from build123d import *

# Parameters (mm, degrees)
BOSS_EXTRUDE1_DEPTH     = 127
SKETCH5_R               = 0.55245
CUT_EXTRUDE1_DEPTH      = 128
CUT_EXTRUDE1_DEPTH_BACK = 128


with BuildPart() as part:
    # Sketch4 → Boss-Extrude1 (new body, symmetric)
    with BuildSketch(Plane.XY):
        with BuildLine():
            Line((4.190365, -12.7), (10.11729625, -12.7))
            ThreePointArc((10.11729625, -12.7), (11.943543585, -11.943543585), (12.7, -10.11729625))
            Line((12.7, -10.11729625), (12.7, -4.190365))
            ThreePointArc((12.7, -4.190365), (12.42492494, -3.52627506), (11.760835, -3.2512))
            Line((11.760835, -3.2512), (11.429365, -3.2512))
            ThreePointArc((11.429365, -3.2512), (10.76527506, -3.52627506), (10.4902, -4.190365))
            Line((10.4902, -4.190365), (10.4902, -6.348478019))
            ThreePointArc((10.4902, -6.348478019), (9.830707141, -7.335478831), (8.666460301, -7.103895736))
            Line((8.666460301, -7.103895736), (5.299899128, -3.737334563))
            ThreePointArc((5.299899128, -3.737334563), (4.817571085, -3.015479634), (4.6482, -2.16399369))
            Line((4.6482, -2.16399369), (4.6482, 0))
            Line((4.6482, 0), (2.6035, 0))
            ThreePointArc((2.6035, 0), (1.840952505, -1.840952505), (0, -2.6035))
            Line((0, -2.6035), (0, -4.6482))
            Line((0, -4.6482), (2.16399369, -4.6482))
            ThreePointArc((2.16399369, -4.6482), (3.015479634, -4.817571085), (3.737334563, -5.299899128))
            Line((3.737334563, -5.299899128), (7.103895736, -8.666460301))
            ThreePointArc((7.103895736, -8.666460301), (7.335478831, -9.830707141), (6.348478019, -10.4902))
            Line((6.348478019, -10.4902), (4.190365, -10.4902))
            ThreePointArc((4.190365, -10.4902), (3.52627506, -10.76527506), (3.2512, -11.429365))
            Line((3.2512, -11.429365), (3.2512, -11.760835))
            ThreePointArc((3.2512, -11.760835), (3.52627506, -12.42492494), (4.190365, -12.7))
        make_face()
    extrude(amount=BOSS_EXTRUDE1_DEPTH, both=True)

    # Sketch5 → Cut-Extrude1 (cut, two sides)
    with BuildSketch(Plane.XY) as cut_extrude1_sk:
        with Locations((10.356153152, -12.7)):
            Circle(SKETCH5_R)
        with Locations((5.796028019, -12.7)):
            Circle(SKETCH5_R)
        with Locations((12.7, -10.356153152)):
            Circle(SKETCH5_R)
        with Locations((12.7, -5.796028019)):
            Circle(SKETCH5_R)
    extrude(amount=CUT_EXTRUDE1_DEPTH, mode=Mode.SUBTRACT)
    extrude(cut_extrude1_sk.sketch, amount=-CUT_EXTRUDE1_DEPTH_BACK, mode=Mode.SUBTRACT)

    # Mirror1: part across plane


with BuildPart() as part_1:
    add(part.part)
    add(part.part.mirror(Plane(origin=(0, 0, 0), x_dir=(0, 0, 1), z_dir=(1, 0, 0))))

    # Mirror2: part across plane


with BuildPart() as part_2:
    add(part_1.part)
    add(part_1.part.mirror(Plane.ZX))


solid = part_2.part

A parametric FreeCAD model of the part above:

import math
import FreeCAD as App
import Part
import Sketcher
Q = App.Units.Quantity

doc = App.newDocument("Part")
body = doc.addObject("PartDesign::Body", "Body")

# Sketch on XY plane
sketch1 = doc.addObject("Sketcher::SketchObject", "Sketch")
body.addObject(sketch1)
sketch1.AttachmentSupport = (doc.XY_Plane, [""])
sketch1.MapMode = "FlatFace"
sketch1.addGeometry([
    Part.LineSegment(App.Vector(4.19, -12.7, 0), App.Vector(10.12, -12.7, 0)),  # 0
    Part.ArcOfCircle(Part.Circle(App.Vector(10.12, -10.12, 0), App.Vector(0, 0, 1), 2.58), math.radians(-90), math.radians(0)),  # 1
    Part.LineSegment(App.Vector(12.7, -10.12, 0), App.Vector(12.7, -4.19, 0)),  # 2
    Part.ArcOfCircle(Part.Circle(App.Vector(11.76, -4.19, 0), App.Vector(0, 0, 1), 0.94), math.radians(0), math.radians(90)),  # 3
    Part.LineSegment(App.Vector(11.76, -3.25, 0), App.Vector(11.43, -3.25, 0)),  # 4
    Part.ArcOfCircle(Part.Circle(App.Vector(11.43, -4.19, 0), App.Vector(0, 0, 1), 0.94), math.radians(90), math.radians(180)),  # 5
    Part.LineSegment(App.Vector(10.49, -4.19, 0), App.Vector(10.49, -6.35, 0)),  # 6
    Part.ArcOfCircle(Part.Circle(App.Vector(9.42, -6.35, 0), App.Vector(0, 0, 1), 1.07), math.radians(-135), math.radians(0)),  # 7
    Part.LineSegment(App.Vector(8.67, -7.1, 0), App.Vector(5.3, -3.74, 0)),  # 8
    Part.ArcOfCircle(Part.Circle(App.Vector(6.87, -2.16, 0), App.Vector(0, 0, 1), 2.23), math.radians(-180), math.radians(-135)),  # 9
    Part.LineSegment(App.Vector(4.65, -2.16, 0), App.Vector(4.65, 0, 0)),  # 10
    Part.LineSegment(App.Vector(4.65, 0, 0), App.Vector(2.6, 0, 0)),  # 11
    Part.ArcOfCircle(Part.Circle(App.Vector(0, 0, 0), App.Vector(0, 0, 1), 2.6), math.radians(-90), math.radians(0)),  # 12
    Part.LineSegment(App.Vector(0, -2.6, 0), App.Vector(0, -4.65, 0)),  # 13
    Part.LineSegment(App.Vector(0, -4.65, 0), App.Vector(2.16, -4.65, 0)),  # 14
    Part.ArcOfCircle(Part.Circle(App.Vector(2.16, -6.87, 0), App.Vector(0, 0, 1), 2.23), math.radians(45), math.radians(90)),  # 15
    Part.LineSegment(App.Vector(3.74, -5.3, 0), App.Vector(7.1, -8.67, 0)),  # 16
    Part.ArcOfCircle(Part.Circle(App.Vector(6.35, -9.42, 0), App.Vector(0, 0, 1), 1.07), math.radians(-90), math.radians(45)),  # 17
    Part.LineSegment(App.Vector(6.35, -10.49, 0), App.Vector(4.19, -10.49, 0)),  # 18
    Part.ArcOfCircle(Part.Circle(App.Vector(4.19, -11.43, 0), App.Vector(0, 0, 1), 0.94), math.radians(90), math.radians(180)),  # 19
    Part.LineSegment(App.Vector(3.25, -11.43, 0), App.Vector(3.25, -11.76, 0)),  # 20
    Part.ArcOfCircle(Part.Circle(App.Vector(4.19, -11.76, 0), App.Vector(0, 0, 1), 0.94), math.radians(-180), math.radians(-90)),  # 21
], False)
sketch1.addConstraint([
    Sketcher.Constraint("Tangent", 0, 2, 1, 1),
    Sketcher.Constraint("Tangent", 1, 2, 2, 1),
    Sketcher.Constraint("Tangent", 2, 2, 3, 1),
    Sketcher.Constraint("Tangent", 3, 2, 4, 1),
    Sketcher.Constraint("Tangent", 4, 2, 5, 1),
    Sketcher.Constraint("Tangent", 5, 2, 6, 1),
    Sketcher.Constraint("Tangent", 6, 2, 7, 2),
    Sketcher.Constraint("Tangent", 7, 1, 8, 1),
    Sketcher.Constraint("Tangent", 8, 2, 9, 2),
    Sketcher.Constraint("Tangent", 9, 1, 10, 1),
    Sketcher.Constraint("Coincident", 10, 2, 11, 1),
    Sketcher.Constraint("Coincident", 11, 2, 12, 2),
    Sketcher.Constraint("Coincident", 12, 1, 13, 1),
    Sketcher.Constraint("Coincident", 13, 2, 14, 1),
    Sketcher.Constraint("Tangent", 14, 2, 15, 2),
    Sketcher.Constraint("Tangent", 15, 1, 16, 1),
    Sketcher.Constraint("Tangent", 16, 2, 17, 2),
    Sketcher.Constraint("Tangent", 17, 1, 18, 1),
    Sketcher.Constraint("Tangent", 18, 2, 19, 1),
    Sketcher.Constraint("Tangent", 19, 2, 20, 1),
    Sketcher.Constraint("Tangent", 20, 2, 21, 1),
    Sketcher.Constraint("Tangent", 21, 2, 0, 1),
    Sketcher.Constraint("Horizontal", 0),
    Sketcher.Constraint("Vertical", 2),
    Sketcher.Constraint("Horizontal", 4),
    Sketcher.Constraint("Vertical", 6),
    Sketcher.Constraint("Vertical", 10),
    Sketcher.Constraint("Horizontal", 11),
    Sketcher.Constraint("Vertical", 13),
    Sketcher.Constraint("Horizontal", 14),
    Sketcher.Constraint("Horizontal", 18),
    Sketcher.Constraint("Vertical", 20),
    Sketcher.Constraint("Coincident", 12, 3, -1, 1),
    Sketcher.Constraint("Equal", 3, 5),
    Sketcher.Constraint("Equal", 9, 15),
    Sketcher.Constraint("Equal", 7, 17),
    Sketcher.Constraint("Equal", 5, 19),
    Sketcher.Constraint("Equal", 19, 21),
    Sketcher.Constraint("PointOnObject", 10, 2, -1),
    Sketcher.Constraint("PointOnObject", 12, 1, -2),
    Sketcher.Constraint("Parallel", 8, 16),
    Sketcher.Constraint("Equal", 0, 2),
    Sketcher.Constraint("Equal", 18, 6),
    Sketcher.Constraint("Equal", 14, 10),
    Sketcher.Constraint("Equal", 11, 13),
    Sketcher.Constraint("Equal", 4, 20),
    Sketcher.Constraint("Equal", 8, 16),
    Sketcher.Constraint("DistanceY", 0, 2, -1, 1, Q("0.5 in")),
    Sketcher.Constraint("Radius", 9, Q("0.0876 in")),
    Sketcher.Constraint("Radius", 12, Q("0.1025 in")),
    Sketcher.Constraint("DistanceX", 9, 1, 5, 2, Q("0.23 in")),
    Sketcher.Constraint("DistanceX", 11, 2, 11, 1, Q("0.0805 in")),
    Sketcher.Constraint("DistanceY", 3, 2, -1, 1, Q("0.128 in")),
    Sketcher.Constraint("Radius", 7, 1.068322),
    Sketcher.Constraint("DistanceX", 17, 3, 7, 3, Q("0.121 in")),
    Sketcher.Constraint("Radius", 1, 2.582704),
    Sketcher.Constraint("Radius", 3, 0.939165),
])
pad1 = doc.addObject("PartDesign::Pad", "Pad")
body.addObject(pad1)
pad1.Profile = sketch1
pad1.Length = Q("10 in")
pad1.Midplane = True

# Sketch on XY plane
sketch2 = doc.addObject("Sketcher::SketchObject", "Sketch001")
body.addObject(sketch2)
sketch2.AttachmentSupport = (doc.XY_Plane, [""])
sketch2.MapMode = "FlatFace"
sketch2.addGeometry([
    Part.Circle(App.Vector(10.4, -12.7, 0), App.Vector(0, 0, 1), 0.6),
    Part.Circle(App.Vector(5.8, -12.7, 0), App.Vector(0, 0, 1), 0.6),
    Part.Circle(App.Vector(12.7, -10.4, 0), App.Vector(0, 0, 1), 0.6),
    Part.Circle(App.Vector(12.7, -5.8, 0), App.Vector(0, 0, 1), 0.6),
], False)
sketch2.addConstraint([
    Sketcher.Constraint("Equal", 0, 1),
    Sketcher.Constraint("Equal", 1, 2),
    Sketcher.Constraint("Equal", 2, 3),
    Sketcher.Constraint("Horizontal", 0, 3, 1, 3),
    Sketcher.Constraint("Vertical", 2, 3, 3, 3),
    Sketcher.Constraint("Diameter", 0, Q("0.0435 in")),
    Sketcher.Constraint("DistanceY", 0, 3, -1, 1, Q("0.5 in")),
    Sketcher.Constraint("DistanceX", -1, 1, 2, 3, Q("0.5 in")),
    Sketcher.Constraint("DistanceX", -1, 1, 1, 3, 5.796028),
    Sketcher.Constraint("DistanceY", 3, 3, -1, 1, 5.796028),
    Sketcher.Constraint("DistanceX", -1, 1, 0, 3, 10.356153),
    Sketcher.Constraint("DistanceY", 2, 3, -1, 1, 10.356153),
])
pocket1 = doc.addObject("PartDesign::Pocket", "Pocket")
body.addObject(pocket1)
pocket1.Profile = sketch2
pocket1.Type = "ThroughAll"
pocket1.Midplane = True
body2 = doc.addObject("PartDesign::Body", "Body001")
doc.recompute()

body2.BaseFeature = body
doc.recompute()

mirroring = doc.addObject("Part::Mirroring", "Mirroring")
mirroring.Source = body
mirroring.Base = App.Vector(0, 0, 0)
mirroring.Normal = App.Vector(1, 0, 0)
body3 = doc.addObject("PartDesign::Body", "Body002")
body3.BaseFeature = mirroring
boolean = doc.addObject("PartDesign::Boolean", "Boolean")
body2.addObject(boolean)
boolean.Type = "Fuse"
boolean.addObjects([body3])
doc.recompute()
body4 = doc.addObject("PartDesign::Body", "Body003")
doc.recompute()

body4.BaseFeature = body2
doc.recompute()

mirroring2 = doc.addObject("Part::Mirroring", "Mirroring001")
mirroring2.Source = body2
mirroring2.Base = App.Vector(0, 0, 0)
mirroring2.Normal = App.Vector(0, 1, 0)
body5 = doc.addObject("PartDesign::Body", "Body004")
body5.BaseFeature = mirroring2
boolean2 = doc.addObject("PartDesign::Boolean", "Boolean001")
body4.addObject(boolean2)
boolean2.Type = "Fuse"
boolean2.addObjects([body5])
doc.recompute()
mirroring.Visibility = False
mirroring2.Visibility = False

doc.recompute()
